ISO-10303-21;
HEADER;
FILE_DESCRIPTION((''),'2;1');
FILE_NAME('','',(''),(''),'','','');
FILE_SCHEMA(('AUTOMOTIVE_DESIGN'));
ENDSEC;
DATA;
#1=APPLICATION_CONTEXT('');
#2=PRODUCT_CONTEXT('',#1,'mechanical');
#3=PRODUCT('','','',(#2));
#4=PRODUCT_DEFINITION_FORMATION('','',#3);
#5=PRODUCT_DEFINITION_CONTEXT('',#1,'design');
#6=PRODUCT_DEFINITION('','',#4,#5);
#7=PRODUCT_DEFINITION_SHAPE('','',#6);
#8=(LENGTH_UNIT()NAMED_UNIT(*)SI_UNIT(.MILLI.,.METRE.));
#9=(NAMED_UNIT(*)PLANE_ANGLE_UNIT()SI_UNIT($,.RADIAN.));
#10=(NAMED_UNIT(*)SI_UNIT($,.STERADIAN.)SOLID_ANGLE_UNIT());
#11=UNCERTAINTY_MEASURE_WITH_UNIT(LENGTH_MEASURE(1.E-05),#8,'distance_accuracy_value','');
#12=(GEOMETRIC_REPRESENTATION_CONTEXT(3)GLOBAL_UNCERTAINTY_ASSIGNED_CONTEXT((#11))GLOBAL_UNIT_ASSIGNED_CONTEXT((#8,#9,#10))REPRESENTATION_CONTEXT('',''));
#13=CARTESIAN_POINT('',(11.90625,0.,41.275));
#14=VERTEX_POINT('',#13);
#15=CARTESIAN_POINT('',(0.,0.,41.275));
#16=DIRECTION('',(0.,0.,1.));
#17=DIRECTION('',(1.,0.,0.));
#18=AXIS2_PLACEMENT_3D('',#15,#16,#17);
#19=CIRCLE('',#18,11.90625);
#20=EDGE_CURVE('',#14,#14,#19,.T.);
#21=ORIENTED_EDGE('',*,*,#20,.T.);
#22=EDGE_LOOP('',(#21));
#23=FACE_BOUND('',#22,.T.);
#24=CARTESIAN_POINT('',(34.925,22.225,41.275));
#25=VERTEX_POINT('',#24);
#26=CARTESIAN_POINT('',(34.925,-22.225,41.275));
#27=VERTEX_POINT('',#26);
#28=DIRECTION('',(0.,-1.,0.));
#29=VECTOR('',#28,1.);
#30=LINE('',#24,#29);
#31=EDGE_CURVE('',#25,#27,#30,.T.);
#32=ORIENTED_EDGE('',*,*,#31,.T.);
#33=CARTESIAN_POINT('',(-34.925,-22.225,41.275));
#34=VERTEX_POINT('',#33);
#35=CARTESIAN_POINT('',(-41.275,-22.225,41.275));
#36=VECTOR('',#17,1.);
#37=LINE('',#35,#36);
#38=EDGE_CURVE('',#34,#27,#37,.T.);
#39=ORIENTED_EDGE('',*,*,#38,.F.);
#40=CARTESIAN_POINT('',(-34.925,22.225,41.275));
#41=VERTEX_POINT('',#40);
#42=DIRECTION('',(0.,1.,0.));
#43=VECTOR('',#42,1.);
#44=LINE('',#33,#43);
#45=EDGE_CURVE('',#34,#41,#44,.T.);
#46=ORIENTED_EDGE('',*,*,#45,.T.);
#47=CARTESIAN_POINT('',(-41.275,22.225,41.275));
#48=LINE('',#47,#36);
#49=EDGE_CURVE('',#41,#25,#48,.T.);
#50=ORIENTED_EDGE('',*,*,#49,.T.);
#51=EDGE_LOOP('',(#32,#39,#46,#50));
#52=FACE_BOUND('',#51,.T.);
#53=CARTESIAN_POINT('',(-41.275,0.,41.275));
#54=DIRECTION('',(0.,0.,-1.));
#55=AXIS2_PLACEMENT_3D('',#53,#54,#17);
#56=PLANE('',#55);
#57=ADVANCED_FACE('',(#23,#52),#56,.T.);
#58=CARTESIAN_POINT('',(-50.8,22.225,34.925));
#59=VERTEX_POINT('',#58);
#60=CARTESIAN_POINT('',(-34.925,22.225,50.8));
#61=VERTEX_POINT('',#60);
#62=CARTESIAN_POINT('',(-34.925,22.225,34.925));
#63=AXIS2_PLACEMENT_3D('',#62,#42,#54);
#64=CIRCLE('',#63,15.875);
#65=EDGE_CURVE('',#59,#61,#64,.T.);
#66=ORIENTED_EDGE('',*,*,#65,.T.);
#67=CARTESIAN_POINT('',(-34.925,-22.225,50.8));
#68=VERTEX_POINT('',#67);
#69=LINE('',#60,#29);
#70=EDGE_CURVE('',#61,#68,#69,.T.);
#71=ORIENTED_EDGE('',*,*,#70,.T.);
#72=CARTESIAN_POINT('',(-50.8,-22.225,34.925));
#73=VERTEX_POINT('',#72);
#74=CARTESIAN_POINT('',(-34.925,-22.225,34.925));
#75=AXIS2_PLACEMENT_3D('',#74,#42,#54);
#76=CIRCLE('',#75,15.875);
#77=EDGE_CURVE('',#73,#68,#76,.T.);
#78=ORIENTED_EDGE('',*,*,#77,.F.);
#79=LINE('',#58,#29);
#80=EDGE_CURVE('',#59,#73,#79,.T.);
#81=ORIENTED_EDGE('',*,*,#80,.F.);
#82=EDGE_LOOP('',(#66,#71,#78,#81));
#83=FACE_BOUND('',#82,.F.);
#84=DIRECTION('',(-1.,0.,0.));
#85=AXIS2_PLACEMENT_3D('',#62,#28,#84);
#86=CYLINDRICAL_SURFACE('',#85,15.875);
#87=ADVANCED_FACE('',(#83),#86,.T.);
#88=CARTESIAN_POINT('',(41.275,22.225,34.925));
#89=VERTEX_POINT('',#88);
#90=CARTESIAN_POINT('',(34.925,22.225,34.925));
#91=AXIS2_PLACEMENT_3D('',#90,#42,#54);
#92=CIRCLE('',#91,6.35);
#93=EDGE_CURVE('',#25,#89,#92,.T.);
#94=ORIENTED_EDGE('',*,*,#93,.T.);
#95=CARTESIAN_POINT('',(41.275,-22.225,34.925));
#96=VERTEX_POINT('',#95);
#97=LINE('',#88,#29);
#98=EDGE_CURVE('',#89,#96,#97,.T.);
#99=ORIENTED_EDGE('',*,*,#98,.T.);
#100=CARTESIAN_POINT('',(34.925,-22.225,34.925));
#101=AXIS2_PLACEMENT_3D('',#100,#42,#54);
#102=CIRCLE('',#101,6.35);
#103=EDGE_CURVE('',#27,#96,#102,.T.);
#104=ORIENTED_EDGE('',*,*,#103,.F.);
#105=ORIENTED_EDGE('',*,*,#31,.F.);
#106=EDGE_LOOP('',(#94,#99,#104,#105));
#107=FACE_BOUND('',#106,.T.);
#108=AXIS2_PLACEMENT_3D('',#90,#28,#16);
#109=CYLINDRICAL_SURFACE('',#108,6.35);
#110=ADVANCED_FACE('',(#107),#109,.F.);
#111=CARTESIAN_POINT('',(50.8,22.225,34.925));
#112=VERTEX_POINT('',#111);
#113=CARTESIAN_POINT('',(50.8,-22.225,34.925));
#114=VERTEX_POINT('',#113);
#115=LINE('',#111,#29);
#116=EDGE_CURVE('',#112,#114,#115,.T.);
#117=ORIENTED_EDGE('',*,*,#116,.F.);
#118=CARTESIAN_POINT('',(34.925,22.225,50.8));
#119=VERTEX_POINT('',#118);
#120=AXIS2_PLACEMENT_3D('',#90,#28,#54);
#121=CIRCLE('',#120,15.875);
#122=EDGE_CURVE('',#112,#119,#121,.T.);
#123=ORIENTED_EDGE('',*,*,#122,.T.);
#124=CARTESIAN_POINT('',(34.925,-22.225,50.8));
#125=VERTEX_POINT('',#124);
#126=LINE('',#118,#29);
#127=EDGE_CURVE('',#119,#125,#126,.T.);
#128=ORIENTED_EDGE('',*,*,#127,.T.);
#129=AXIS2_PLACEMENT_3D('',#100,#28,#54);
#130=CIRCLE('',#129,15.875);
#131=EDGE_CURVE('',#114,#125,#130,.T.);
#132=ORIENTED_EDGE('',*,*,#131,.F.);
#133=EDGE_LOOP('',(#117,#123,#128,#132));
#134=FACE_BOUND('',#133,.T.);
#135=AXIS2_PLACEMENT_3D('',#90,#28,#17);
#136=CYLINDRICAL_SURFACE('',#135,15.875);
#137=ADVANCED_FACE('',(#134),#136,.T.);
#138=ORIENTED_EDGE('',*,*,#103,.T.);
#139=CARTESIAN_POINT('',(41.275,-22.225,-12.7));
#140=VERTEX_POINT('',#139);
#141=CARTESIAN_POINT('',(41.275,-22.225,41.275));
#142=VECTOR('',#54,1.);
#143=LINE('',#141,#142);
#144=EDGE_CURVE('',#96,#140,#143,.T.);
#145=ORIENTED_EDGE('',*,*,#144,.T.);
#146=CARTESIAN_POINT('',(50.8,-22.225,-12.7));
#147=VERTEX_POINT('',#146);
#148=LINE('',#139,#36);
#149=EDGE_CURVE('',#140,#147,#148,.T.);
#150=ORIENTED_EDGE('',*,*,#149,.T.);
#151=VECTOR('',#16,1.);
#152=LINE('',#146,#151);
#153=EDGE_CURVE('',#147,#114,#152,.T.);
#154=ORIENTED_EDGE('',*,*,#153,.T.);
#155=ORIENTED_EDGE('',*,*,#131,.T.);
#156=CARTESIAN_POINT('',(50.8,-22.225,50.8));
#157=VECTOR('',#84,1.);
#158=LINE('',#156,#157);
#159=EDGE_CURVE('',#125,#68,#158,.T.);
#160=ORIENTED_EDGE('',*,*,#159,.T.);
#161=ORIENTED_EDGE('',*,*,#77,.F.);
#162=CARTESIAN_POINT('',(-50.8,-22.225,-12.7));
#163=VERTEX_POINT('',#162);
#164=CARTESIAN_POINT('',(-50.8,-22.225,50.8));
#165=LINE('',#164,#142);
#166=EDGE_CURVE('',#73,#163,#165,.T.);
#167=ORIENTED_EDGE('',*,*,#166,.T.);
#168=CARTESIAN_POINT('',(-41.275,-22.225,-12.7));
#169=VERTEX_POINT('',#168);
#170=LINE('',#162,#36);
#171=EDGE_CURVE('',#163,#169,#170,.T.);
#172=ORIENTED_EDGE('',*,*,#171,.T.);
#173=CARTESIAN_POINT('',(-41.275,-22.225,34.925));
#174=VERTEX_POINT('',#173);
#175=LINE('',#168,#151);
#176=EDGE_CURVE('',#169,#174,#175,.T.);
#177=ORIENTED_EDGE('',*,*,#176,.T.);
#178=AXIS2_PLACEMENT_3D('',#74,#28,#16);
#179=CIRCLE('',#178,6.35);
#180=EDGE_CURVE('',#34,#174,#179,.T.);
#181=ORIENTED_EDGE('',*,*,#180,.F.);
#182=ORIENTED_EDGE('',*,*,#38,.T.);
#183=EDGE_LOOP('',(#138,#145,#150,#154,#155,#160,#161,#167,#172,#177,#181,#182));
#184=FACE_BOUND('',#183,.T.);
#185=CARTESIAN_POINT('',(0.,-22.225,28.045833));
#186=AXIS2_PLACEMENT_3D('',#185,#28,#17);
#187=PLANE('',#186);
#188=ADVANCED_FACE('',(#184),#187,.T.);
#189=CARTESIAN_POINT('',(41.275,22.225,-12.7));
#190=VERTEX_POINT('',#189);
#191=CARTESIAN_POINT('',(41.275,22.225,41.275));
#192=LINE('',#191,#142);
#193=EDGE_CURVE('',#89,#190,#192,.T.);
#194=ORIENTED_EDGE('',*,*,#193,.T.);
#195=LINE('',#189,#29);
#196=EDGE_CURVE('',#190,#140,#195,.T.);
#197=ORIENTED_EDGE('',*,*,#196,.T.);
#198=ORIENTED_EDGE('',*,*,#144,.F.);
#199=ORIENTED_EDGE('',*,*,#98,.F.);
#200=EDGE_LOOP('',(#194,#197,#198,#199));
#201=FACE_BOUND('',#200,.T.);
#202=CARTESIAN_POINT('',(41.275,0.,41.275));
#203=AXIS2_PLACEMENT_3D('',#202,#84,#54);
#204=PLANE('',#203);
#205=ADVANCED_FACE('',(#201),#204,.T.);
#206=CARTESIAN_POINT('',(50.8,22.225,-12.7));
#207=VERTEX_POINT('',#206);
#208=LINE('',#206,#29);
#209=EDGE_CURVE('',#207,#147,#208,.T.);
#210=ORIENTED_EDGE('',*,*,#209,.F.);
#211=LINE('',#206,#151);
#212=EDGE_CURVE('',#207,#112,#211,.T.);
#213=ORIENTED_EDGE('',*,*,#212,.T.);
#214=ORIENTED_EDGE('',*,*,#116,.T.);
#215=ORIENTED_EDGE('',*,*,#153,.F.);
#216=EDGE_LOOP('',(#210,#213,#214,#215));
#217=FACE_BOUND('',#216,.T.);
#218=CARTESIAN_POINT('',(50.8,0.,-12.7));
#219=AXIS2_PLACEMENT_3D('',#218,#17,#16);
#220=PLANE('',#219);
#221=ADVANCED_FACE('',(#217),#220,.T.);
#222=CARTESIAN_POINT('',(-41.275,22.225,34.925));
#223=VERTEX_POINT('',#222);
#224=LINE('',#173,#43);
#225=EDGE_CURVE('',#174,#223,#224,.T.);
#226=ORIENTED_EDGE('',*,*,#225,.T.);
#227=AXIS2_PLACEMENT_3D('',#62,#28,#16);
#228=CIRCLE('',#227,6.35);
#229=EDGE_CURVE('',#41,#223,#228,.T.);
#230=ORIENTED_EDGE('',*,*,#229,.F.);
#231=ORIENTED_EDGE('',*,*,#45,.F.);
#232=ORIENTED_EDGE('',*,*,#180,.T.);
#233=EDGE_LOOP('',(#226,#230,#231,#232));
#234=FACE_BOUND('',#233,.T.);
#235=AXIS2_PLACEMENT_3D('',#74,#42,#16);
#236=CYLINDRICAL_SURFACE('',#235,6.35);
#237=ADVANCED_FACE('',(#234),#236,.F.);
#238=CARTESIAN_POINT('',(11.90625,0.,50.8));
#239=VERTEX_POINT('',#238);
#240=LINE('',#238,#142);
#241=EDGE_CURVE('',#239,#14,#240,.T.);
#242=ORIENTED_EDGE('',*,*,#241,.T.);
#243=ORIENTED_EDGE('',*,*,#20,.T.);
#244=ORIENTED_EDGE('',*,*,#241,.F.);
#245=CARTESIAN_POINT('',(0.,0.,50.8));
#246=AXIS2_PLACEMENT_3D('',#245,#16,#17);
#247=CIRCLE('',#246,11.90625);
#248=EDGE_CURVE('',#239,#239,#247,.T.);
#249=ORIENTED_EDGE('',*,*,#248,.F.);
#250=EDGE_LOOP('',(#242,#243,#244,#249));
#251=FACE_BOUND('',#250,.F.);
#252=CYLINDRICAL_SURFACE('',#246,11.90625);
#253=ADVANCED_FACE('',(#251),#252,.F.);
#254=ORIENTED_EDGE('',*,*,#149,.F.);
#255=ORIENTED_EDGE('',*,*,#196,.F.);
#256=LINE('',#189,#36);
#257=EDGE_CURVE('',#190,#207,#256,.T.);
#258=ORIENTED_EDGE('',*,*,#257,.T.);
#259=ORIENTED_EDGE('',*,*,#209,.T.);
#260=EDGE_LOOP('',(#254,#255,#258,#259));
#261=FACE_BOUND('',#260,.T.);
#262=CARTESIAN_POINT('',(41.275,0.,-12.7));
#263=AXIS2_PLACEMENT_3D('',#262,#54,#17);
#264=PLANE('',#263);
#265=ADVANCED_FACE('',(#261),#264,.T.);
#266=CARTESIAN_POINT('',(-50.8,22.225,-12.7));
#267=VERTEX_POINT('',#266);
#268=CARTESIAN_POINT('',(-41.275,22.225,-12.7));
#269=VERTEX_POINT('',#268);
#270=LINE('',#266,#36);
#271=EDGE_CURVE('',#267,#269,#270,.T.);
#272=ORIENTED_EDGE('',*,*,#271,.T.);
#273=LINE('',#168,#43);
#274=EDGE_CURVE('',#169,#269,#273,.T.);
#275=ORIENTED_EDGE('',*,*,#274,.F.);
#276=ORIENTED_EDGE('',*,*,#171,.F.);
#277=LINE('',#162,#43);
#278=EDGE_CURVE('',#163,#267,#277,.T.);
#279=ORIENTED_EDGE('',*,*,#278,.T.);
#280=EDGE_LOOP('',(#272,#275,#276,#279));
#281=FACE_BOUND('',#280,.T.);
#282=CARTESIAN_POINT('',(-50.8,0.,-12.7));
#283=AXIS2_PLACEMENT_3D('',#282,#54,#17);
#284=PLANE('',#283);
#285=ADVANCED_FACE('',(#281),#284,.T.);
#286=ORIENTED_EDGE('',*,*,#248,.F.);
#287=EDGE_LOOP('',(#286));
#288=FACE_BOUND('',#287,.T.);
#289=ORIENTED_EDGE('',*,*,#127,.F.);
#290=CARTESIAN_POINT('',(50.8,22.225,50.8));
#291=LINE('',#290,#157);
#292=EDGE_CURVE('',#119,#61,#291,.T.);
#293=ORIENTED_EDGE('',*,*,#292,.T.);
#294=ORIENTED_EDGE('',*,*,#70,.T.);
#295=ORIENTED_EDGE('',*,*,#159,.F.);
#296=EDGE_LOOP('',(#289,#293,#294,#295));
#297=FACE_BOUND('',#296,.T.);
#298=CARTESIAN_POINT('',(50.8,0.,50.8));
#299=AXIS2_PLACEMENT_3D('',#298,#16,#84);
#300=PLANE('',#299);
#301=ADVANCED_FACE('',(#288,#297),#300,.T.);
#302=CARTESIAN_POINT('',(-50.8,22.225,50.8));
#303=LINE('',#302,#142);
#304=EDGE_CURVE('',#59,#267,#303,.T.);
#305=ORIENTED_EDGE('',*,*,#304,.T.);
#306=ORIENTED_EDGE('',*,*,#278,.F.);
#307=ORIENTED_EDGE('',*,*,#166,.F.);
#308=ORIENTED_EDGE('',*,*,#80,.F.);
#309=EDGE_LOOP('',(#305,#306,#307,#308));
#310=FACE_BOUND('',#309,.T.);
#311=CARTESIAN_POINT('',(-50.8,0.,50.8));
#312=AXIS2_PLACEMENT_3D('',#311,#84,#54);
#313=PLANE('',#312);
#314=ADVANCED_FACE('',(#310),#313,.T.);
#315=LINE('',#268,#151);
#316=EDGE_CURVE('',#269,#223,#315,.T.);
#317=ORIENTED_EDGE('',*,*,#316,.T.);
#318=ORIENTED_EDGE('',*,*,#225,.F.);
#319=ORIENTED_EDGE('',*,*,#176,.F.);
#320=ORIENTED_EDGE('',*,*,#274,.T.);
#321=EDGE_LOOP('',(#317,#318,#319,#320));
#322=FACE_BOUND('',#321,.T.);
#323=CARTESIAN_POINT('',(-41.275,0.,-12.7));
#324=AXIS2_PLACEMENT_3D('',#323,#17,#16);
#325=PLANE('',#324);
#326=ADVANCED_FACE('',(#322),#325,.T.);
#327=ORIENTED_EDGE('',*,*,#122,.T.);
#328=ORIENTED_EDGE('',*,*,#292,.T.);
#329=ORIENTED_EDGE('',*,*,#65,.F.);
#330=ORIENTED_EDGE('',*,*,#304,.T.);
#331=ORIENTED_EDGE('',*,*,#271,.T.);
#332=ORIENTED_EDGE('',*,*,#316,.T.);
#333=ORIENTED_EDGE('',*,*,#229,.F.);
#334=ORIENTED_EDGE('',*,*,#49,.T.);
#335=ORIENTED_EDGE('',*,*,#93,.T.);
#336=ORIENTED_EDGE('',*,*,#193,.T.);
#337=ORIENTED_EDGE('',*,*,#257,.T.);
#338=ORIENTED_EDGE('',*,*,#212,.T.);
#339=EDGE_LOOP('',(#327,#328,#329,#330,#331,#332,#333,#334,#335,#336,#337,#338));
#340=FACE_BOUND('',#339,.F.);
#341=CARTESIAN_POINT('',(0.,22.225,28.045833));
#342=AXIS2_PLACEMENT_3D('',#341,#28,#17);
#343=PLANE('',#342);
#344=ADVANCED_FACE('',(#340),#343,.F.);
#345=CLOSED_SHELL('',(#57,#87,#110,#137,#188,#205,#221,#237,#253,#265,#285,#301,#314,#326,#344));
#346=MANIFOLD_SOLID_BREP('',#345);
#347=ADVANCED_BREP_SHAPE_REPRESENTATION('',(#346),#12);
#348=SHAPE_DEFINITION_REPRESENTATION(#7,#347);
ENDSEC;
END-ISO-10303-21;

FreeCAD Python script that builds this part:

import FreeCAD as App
import Part
import Sketcher
from FreeCAD import Vector
Q = App.Units.Quantity


def edges_at(feature, points):
    """Names of the edges that pass closest to the given points."""
    edges = feature.Shape.Edges
    near = lambda p: min(range(len(edges)), key=lambda i: edges[i].distToShape(Part.Vertex(*p))[0])
    return sorted({f"Edge{near(p) + 1}" for p in points})

doc = App.newDocument("Part")
body = doc.addObject("PartDesign::Body", "Body")

# Sketch on XZ plane
sketch1 = body.newObject("Sketcher::SketchObject", "Sketch")
sketch1.AttachmentSupport = (doc.getObject("XZ_Plane"), [""])
sketch1.MapMode = "FlatFace"
sketch1.addGeometry(Part.LineSegment(Vector(-41.275, 41.275, 0), Vector(41.275, 41.275, 0)), False)
sketch1.addGeometry(Part.LineSegment(Vector(41.275, 41.275, 0), Vector(41.275, -12.7, 0)), False)
sketch1.addGeometry(Part.LineSegment(Vector(41.275, -12.7, 0), Vector(50.8, -12.7, 0)), False)
sketch1.addGeometry(Part.LineSegment(Vector(50.8, -12.7, 0), Vector(50.8, 50.8, 0)), False)
sketch1.addGeometry(Part.LineSegment(Vector(50.8, 50.8, 0), Vector(-50.8, 50.8, 0)), False)
sketch1.addGeometry(Part.LineSegment(Vector(-50.8, 50.8, 0), Vector(-50.8, -12.7, 0)), False)
sketch1.addGeometry(Part.LineSegment(Vector(-50.8, -12.7, 0), Vector(-41.275, -12.7, 0)), False)
sketch1.addGeometry(Part.LineSegment(Vector(-41.275, -12.7, 0), Vector(-41.275, 41.275, 0)), False)
sketch1.addConstraint(Sketcher.Constraint("Coincident", 0, 2, 1, 1))
sketch1.addConstraint(Sketcher.Constraint("Coincident", 1, 2, 2, 1))
sketch1.addConstraint(Sketcher.Constraint("Coincident", 2, 2, 3, 1))
sketch1.addConstraint(Sketcher.Constraint("Coincident", 3, 2, 4, 1))
sketch1.addConstraint(Sketcher.Constraint("Coincident", 4, 2, 5, 1))
sketch1.addConstraint(Sketcher.Constraint("Coincident", 5, 2, 6, 1))
sketch1.addConstraint(Sketcher.Constraint("Coincident", 6, 2, 7, 1))
sketch1.addConstraint(Sketcher.Constraint("Coincident", 7, 2, 0, 1))
sketch1.addConstraint(Sketcher.Constraint("Horizontal", 0))
sketch1.addConstraint(Sketcher.Constraint("Vertical", 1))
sketch1.addConstraint(Sketcher.Constraint("Horizontal", 2))
sketch1.addConstraint(Sketcher.Constraint("Vertical", 3))
sketch1.addConstraint(Sketcher.Constraint("Horizontal", 4))
sketch1.addConstraint(Sketcher.Constraint("Vertical", 5))
sketch1.addConstraint(Sketcher.Constraint("Horizontal", 6))
sketch1.addConstraint(Sketcher.Constraint("Vertical", 7))
sketch1.addConstraint(Sketcher.Constraint("Symmetric", 2, 2, 5, 2, -2))
sketch1.addConstraint(Sketcher.Constraint("Equal", 2, 6))
sketch1.addConstraint(Sketcher.Constraint("DistanceX", 4, 2, 4, 1, Q("4 in")))
sketch1.addConstraint(Sketcher.Constraint("DistanceY", 3, 1, 3, 2, Q("2.5 in")))
sketch1.addConstraint(Sketcher.Constraint("DistanceY", -1, 1, 3, 2, Q("2 in")))
sketch1.addConstraint(Sketcher.Constraint("DistanceX", 0, 1, 0, 2, Q("3.25 in")))
sketch1.addConstraint(Sketcher.Constraint("DistanceY", 1, 2, 1, 1, Q("2.125 in")))
pad1 = body.newObject("PartDesign::Pad", "Pad")
pad1.Profile = sketch1
pad1.Length = Q("1.75 in")
pad1.Midplane = True
doc.recompute()

fillet = body.newObject("PartDesign::Fillet", "Fillet")
fillet.Base = (pad1, edges_at(pad1, [(-41.275, 0, 41.275), (41.275, 0, 41.275)]))
fillet.Radius = Q("0.25 in")
doc.recompute()

fillet2 = body.newObject("PartDesign::Fillet", "Fillet001")
fillet2.Base = (fillet, edges_at(fillet, [(50.8, 0, 50.8), (-50.8, 0, 50.8)]))
fillet2.Radius = Q("0.625 in")

# Sketch on XY plane
sketch2 = body.newObject("Sketcher::SketchObject", "Sketch001")
sketch2.AttachmentSupport = (doc.getObject("XY_Plane"), [""])
sketch2.MapMode = "FlatFace"
sketch2.AttachmentOffset = App.Placement(Vector(0, 0, 2 * 25.4), App.Rotation())
sketch2.addGeometry(Part.Circle(Vector(0, 0, 0), Vector(0, 0, 1), 11.90625), False)
sketch2.addConstraint(Sketcher.Constraint("Coincident", 0, 3, -1, 1))
sketch2.addConstraint(Sketcher.Constraint("Diameter", 0, Q("0.9375 in")))
pocket1 = body.newObject("PartDesign::Pocket", "Pocket")
pocket1.Profile = sketch2
pocket1.Length = Q("1 in")

doc.recompute()
